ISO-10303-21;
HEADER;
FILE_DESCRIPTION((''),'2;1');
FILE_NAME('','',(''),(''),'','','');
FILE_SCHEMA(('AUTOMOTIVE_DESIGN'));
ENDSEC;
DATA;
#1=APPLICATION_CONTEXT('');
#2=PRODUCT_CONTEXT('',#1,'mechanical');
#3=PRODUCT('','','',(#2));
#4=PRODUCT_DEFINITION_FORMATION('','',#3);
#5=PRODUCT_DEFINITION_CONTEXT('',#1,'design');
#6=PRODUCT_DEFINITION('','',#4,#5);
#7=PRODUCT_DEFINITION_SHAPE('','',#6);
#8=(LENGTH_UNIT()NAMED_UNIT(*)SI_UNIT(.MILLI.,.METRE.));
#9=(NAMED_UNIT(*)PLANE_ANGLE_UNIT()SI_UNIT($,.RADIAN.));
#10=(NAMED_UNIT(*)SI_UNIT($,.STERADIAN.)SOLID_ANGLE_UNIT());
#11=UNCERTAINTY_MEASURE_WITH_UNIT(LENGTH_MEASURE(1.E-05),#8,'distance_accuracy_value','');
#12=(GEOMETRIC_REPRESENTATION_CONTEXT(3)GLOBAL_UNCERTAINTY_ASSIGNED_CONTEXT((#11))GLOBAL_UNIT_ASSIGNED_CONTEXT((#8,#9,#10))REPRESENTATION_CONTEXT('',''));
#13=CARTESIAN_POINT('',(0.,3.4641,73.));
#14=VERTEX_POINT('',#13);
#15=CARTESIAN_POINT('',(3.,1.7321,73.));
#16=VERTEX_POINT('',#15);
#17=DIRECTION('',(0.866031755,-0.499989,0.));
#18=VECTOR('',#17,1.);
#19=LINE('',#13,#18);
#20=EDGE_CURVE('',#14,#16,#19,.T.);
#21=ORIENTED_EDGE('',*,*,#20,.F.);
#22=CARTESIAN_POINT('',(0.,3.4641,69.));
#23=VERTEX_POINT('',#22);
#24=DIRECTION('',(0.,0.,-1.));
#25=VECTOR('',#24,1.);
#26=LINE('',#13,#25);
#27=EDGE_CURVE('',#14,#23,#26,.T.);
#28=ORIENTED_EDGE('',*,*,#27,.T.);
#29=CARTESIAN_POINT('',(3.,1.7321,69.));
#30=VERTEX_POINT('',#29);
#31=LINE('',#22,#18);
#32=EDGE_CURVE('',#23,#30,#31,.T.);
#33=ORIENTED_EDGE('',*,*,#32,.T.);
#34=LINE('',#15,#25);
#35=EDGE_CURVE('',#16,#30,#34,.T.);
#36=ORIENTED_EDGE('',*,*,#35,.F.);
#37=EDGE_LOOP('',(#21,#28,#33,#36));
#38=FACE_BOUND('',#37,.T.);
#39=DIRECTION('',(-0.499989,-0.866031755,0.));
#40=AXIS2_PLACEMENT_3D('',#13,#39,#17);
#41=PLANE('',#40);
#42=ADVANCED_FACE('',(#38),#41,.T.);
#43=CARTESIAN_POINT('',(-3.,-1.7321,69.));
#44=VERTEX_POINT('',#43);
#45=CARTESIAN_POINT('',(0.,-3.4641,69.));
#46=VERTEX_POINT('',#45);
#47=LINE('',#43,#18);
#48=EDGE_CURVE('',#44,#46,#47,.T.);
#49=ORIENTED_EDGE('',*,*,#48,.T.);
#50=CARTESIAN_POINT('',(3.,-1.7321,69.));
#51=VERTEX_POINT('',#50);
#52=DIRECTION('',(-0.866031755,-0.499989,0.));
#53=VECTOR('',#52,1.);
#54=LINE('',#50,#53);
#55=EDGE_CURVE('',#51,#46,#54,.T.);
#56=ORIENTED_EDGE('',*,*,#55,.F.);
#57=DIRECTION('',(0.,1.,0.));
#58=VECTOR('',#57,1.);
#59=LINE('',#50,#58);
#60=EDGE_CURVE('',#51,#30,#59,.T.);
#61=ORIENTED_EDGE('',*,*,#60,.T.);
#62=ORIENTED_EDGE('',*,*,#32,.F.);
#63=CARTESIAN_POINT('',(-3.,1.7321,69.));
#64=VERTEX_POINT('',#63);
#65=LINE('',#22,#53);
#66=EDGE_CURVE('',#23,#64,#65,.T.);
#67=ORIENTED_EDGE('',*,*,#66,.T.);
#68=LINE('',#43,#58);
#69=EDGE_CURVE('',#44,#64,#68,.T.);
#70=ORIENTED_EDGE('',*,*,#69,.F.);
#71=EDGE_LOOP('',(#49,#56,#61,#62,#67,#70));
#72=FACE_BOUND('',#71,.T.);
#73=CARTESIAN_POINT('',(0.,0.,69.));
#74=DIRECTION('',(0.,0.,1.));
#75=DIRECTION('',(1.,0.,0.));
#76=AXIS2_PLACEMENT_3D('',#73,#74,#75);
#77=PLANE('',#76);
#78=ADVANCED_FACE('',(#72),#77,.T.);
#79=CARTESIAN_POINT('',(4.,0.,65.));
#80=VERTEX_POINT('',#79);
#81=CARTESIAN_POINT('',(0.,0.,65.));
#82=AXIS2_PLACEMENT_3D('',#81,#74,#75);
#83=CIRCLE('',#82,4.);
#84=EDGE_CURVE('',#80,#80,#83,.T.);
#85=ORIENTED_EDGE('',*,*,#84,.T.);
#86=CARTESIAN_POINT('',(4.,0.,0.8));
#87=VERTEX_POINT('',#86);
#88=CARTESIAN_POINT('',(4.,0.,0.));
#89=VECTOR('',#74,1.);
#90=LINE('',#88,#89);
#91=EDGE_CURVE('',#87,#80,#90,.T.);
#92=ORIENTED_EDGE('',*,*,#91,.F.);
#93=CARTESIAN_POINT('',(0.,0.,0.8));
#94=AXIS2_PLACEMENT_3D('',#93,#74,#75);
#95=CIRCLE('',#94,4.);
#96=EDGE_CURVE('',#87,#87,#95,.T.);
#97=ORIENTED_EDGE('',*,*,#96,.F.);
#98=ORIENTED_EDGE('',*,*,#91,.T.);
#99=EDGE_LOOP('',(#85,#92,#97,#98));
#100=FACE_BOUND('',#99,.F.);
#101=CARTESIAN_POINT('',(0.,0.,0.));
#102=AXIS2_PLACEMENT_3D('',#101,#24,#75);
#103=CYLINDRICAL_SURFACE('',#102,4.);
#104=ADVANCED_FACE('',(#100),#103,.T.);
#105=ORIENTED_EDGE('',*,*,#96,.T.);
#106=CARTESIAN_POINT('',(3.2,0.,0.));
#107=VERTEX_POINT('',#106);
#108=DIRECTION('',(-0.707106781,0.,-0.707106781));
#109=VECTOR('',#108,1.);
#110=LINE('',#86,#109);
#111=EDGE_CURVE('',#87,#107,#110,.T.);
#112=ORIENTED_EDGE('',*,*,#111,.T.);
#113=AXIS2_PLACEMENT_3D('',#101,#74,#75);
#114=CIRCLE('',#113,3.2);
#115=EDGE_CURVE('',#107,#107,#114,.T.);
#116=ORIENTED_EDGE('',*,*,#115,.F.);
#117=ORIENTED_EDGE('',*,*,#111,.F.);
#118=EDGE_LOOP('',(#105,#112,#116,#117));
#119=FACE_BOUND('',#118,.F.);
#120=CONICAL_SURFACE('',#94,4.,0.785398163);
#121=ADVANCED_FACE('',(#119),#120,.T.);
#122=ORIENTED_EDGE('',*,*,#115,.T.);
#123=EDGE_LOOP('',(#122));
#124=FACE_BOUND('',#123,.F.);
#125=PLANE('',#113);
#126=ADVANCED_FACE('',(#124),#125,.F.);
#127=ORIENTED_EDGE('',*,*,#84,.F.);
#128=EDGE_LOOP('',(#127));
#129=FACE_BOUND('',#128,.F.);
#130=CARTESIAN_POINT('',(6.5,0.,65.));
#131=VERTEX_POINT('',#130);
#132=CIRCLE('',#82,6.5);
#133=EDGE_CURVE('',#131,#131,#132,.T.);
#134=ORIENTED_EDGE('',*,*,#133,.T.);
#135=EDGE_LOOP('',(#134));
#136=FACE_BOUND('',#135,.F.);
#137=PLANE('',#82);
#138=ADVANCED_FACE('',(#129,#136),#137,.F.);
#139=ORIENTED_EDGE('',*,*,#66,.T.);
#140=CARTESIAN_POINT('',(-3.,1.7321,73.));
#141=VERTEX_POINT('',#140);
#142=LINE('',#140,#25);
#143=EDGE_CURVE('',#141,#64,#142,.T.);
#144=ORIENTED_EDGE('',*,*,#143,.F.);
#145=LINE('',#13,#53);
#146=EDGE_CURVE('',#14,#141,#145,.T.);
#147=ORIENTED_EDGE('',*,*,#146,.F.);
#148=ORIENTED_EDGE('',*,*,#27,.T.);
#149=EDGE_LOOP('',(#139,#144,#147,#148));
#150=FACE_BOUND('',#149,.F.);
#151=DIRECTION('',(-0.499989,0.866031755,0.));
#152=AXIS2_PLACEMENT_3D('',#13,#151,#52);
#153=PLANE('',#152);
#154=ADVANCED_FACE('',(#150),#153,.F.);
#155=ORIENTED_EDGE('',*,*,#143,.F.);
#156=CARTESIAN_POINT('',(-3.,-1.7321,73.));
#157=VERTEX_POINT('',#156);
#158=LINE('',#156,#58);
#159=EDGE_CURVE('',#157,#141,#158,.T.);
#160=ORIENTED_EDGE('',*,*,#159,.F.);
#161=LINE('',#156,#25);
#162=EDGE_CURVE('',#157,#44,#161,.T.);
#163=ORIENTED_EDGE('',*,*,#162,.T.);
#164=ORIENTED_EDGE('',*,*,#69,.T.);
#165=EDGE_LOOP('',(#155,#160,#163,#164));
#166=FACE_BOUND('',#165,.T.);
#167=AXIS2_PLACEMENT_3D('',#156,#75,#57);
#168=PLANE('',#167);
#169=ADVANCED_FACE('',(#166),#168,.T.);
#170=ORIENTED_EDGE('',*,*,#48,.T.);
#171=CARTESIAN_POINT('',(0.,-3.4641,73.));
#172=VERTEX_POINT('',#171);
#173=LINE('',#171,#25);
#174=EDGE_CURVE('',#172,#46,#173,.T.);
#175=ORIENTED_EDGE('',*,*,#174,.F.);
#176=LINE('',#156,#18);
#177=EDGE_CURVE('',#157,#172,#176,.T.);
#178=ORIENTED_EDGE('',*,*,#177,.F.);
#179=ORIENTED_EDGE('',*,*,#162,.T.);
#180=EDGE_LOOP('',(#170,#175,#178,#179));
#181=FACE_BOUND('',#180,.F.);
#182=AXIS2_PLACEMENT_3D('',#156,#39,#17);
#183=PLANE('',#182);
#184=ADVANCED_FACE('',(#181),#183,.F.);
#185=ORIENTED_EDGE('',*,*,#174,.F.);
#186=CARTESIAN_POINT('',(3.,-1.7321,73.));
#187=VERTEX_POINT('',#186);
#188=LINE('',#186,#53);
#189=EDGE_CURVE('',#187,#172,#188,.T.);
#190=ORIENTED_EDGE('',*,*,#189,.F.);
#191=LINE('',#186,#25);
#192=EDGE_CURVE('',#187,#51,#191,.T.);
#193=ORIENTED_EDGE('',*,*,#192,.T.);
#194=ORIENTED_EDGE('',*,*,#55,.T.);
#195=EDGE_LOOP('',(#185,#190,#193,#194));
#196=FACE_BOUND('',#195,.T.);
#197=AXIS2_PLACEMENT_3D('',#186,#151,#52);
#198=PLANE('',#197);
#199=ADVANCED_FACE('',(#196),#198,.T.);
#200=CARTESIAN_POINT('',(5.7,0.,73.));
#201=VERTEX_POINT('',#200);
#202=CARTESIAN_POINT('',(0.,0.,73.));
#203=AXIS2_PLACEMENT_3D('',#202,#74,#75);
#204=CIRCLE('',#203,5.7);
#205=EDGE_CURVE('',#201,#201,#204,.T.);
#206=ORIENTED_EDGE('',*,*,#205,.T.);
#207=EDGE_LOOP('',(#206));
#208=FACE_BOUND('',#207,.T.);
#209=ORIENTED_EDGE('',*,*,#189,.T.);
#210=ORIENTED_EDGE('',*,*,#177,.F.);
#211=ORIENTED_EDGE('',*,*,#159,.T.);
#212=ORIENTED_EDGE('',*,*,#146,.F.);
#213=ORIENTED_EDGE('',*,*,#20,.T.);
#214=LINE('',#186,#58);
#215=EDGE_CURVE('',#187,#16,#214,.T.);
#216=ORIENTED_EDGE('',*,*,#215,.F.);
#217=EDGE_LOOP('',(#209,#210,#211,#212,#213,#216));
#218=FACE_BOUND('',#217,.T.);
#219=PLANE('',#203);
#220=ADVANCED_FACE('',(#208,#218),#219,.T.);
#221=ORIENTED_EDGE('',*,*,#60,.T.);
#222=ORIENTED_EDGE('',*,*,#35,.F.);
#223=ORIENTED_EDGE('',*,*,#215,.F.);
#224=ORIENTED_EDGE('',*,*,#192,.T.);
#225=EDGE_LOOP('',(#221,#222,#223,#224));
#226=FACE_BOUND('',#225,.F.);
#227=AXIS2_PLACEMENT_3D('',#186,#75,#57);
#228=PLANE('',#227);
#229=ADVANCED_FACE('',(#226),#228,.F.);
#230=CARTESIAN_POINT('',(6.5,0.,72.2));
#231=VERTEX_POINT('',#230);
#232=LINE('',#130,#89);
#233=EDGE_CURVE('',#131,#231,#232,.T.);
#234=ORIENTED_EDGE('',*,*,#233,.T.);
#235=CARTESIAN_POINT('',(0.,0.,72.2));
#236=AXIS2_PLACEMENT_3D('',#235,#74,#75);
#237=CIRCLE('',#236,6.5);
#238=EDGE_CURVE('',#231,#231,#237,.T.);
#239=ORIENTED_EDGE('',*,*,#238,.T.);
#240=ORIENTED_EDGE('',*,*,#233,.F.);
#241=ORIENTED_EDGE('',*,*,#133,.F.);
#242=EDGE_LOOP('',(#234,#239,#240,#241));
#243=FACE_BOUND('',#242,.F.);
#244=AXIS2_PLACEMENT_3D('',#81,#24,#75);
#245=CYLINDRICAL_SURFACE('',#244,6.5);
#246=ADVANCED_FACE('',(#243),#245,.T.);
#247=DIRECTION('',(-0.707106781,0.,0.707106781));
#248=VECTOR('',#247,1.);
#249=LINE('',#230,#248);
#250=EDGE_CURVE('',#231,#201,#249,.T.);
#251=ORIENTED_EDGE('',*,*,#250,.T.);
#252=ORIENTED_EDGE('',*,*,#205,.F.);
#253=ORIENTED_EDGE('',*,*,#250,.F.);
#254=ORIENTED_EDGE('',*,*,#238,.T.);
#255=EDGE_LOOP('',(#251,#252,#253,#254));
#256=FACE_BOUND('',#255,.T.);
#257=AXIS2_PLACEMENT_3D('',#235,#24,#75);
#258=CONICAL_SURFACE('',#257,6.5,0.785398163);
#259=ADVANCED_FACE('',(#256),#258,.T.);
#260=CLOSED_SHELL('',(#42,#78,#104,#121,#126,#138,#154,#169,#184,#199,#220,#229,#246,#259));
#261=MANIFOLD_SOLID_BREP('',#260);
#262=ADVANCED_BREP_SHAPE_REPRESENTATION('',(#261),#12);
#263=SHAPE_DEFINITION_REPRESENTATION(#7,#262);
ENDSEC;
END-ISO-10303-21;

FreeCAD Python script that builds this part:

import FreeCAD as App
import Part
import Sketcher
Q = App.Units.Quantity


def edges_at(feature, points):
    """Names of the edges that pass closest to the given points."""
    edges = feature.Shape.Edges
    near = lambda p: min(range(len(edges)), key=lambda i: edges[i].distToShape(Part.Vertex(*p))[0])
    return sorted({f"Edge{near(p) + 1}" for p in points})


def add_polygon(sketch, points):
    """Adds a closed chain of lines whose ends are joined by coincident constraints."""
    first, n = sketch.GeometryCount, len(points)
    for a, b in zip(points, points[1:] + points[:1]):
        sketch.addGeometry(Part.LineSegment(App.Vector(*a, 0), App.Vector(*b, 0)), False)
    for i in range(n):
        sketch.addConstraint(Sketcher.Constraint("Coincident", first + i, 2, first + (i + 1) % n, 1))

doc = App.newDocument("Part")
body = doc.addObject("PartDesign::Body", "Body")

sketch1 = doc.addObject("Sketcher::SketchObject", "Sketch")
body.addObject(sketch1)
sketch1.AttachmentSupport = (doc.XY_Plane, [""])
sketch1.MapMode = "FlatFace"
sketch1.addGeometry(Part.Circle(App.Vector(0, 0, 0), App.Vector(0, 0, 1), 4), False)
sketch1.addConstraint(Sketcher.Constraint("Coincident", 0, 3, -1, 1))
sketch1.addConstraint(Sketcher.Constraint("Diameter", 0, 8.0))
pad1 = doc.addObject("PartDesign::Pad", "Pad")
body.addObject(pad1)
pad1.Profile = sketch1
pad1.Length = 65

sketch2 = doc.addObject("Sketcher::SketchObject", "Sketch001")
body.addObject(sketch2)
sketch2.AttachmentSupport = (doc.XY_Plane, [""])
sketch2.MapMode = "FlatFace"
sketch2.AttachmentOffset = App.Placement(App.Vector(0, 0, 65), App.Rotation())
sketch2.addGeometry(Part.Circle(App.Vector(0, 0, 0), App.Vector(0, 0, 1), 6.5), False)
sketch2.addConstraint(Sketcher.Constraint("Coincident", 0, 3, -1, 1))
sketch2.addConstraint(Sketcher.Constraint("Diameter", 0, 13.0))
pad2 = doc.addObject("PartDesign::Pad", "Pad001")
body.addObject(pad2)
pad2.Profile = sketch2
pad2.Length = 8

sketch3 = doc.addObject("Sketcher::SketchObject", "Sketch002")
body.addObject(sketch3)
sketch3.AttachmentSupport = (doc.XY_Plane, [""])
sketch3.MapMode = "FlatFace"
sketch3.AttachmentOffset = App.Placement(App.Vector(0, 0, 73), App.Rotation())
add_polygon(sketch3, [(3, 1.7321), (0, 3.4641), (-3, 1.7321), (-3, -1.7321), (0, -3.4641), (3, -1.7321)])
sketch3.addConstraint(Sketcher.Constraint("Vertical", 2))
sketch3.addConstraint(Sketcher.Constraint("Vertical", 5))
sketch3.addConstraint(Sketcher.Constraint("Symmetric", 0, 2, 3, 2, -1, 1))
sketch3.addConstraint(Sketcher.Constraint("Symmetric", 1, 2, 4, 2, -1, 1))
sketch3.addConstraint(Sketcher.Constraint("PointOnObject", 0, 2, -2))
sketch3.addConstraint(Sketcher.Constraint("Parallel", 0, 3))
sketch3.addConstraint(Sketcher.Constraint("Horizontal", 2, 2, 4, 2))
sketch3.addConstraint(Sketcher.Constraint("DistanceX", 2, 2, 4, 2, 6.0))
sketch3.addConstraint(Sketcher.Constraint("Angle", 0, Q("150.0007 deg")))
sketch3.addConstraint(Sketcher.Constraint("DistanceY", 2, 2, 2, 1, 3.4642))
pocket1 = doc.addObject("PartDesign::Pocket", "Pocket")
body.addObject(pocket1)
pocket1.Profile = sketch3
pocket1.Length = 4
doc.recompute()

chamfer = doc.addObject("PartDesign::Chamfer", "Chamfer")
body.addObject(chamfer)
chamfer.Base = (pocket1, edges_at(pocket1, [(-6.5, 0, 73), (-4, 0, 0)]))
chamfer.Size = 0.8

doc.recompute()
